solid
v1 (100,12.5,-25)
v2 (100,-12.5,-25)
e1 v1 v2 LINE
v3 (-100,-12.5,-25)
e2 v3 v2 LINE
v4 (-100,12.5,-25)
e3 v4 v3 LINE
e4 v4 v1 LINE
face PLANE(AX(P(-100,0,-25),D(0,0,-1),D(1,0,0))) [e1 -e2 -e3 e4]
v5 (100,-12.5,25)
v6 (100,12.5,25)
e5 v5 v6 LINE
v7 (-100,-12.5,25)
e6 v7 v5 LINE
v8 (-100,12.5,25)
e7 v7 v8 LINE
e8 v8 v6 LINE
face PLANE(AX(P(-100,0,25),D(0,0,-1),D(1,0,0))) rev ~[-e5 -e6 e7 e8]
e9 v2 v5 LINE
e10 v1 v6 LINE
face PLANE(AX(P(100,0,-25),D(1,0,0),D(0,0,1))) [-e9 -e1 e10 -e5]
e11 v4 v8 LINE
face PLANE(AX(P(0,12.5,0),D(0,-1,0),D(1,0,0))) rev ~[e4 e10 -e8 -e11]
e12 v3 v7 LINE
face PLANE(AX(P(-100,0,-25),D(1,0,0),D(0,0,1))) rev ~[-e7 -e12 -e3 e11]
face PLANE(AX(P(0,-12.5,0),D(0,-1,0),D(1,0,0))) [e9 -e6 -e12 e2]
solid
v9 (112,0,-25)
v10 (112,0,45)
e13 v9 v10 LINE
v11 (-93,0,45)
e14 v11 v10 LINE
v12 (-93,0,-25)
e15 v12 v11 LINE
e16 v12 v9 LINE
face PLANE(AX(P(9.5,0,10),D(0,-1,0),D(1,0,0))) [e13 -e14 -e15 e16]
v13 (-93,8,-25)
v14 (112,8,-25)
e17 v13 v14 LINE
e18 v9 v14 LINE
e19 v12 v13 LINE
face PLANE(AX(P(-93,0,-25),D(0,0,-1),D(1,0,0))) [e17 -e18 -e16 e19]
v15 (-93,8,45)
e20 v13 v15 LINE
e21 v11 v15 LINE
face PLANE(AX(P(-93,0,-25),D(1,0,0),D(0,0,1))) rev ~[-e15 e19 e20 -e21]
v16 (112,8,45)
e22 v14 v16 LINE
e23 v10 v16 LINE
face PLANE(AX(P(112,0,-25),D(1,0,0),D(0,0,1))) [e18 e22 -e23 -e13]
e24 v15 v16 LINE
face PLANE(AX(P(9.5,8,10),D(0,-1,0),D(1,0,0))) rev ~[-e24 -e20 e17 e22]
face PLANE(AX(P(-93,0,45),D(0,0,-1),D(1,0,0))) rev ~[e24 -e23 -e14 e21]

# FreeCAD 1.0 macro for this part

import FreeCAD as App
import Part
import Sketcher

V = App.Vector
Q = App.Units.Quantity


def add_polygon(sketch, points):
    """Adds a closed chain of lines whose ends are joined by coincident constraints."""
    first, n = sketch.GeometryCount, len(points)
    for a, b in zip(points, points[1:] + points[:1]):
        sketch.addGeometry(Part.LineSegment(App.Vector(*a, 0), App.Vector(*b, 0)), False)
    for i in range(n):
        sketch.addConstraint(Sketcher.Constraint("Coincident", first + i, 2, first + (i + 1) % n, 1))

doc = App.newDocument("Part")
params = doc.addObject("Spreadsheet::Sheet", "Params")
for row, (alias, value) in enumerate([
    ("sketch1_width", "200 mm"),
    ("sketch1_height", "50 mm"),
    ("pad1_length", "25 mm"),
    ("sketch2_width", "205 mm"),
    ("sketch2_height", "70 mm"),
    ("pad2_length", "8 mm"),
], start=1):
    params.set(f"A{row}", alias)
    params.set(f"B{row}", "=" + value)
    params.setAlias(f"B{row}", alias)

body = doc.addObject("PartDesign::Body", "Body")

sketch1 = body.newObject("Sketcher::SketchObject", "Sketch")
sketch1.AttachmentSupport = (doc.getObject("XZ_Plane"), [""])
sketch1.MapMode = "FlatFace"
add_polygon(sketch1, [(-100, 25), (-100, -25), (100, -25), (100, 25)])
sketch1.addConstraint([
    Sketcher.Constraint("Vertical", 0),
    Sketcher.Constraint("Horizontal", 1),
    Sketcher.Constraint("Vertical", 2),
    Sketcher.Constraint("Horizontal", 3),
    Sketcher.Constraint("Symmetric", 0, 2, 2, 2, -1, 1),
    Sketcher.Constraint("DistanceX", 1, 1, 1, 2, Q("200 mm")),
    Sketcher.Constraint("DistanceY", 0, 2, 0, 1, Q("50 mm")),
])
sketch1.setExpression("Constraints[9]", "Params.sketch1_width")
sketch1.setExpression("Constraints[10]", "Params.sketch1_height")
pad1 = body.newObject("PartDesign::Pad", "Pad")
pad1.Profile = sketch1
pad1.setExpression("Length", "Params.pad1_length")
pad1.Midplane = True
body2 = doc.addObject("PartDesign::Body", "Body001")

sketch2 = body2.newObject("Sketcher::SketchObject", "Sketch001")
sketch2.AttachmentSupport = (doc.getObject("XZ_Plane001"), [""])
sketch2.MapMode = "FlatFace"
add_polygon(sketch2, [(-93, 45), (-93, -25), (112, -25), (112, 45)])
sketch2.addConstraint([
    Sketcher.Constraint("Vertical", 0),
    Sketcher.Constraint("Horizontal", 1),
    Sketcher.Constraint("Vertical", 2),
    Sketcher.Constraint("Horizontal", 3),
    Sketcher.Constraint("DistanceX", 1, 1, 1, 2, Q("205 mm")),
    Sketcher.Constraint("DistanceY", 0, 2, 0, 1, Q("70 mm")),
    Sketcher.Constraint("DistanceX", 0, 2, -1, 1, Q("93 mm")),
    Sketcher.Constraint("DistanceY", 0, 2, -1, 1, Q("25 mm")),
])
sketch2.setExpression("Constraints[8]", "Params.sketch2_width")
sketch2.setExpression("Constraints[9]", "Params.sketch2_height")
pad2 = body2.newObject("PartDesign::Pad", "Pad001")
pad2.Profile = sketch2
pad2.setExpression("Length", "Params.pad2_length")
pad2.Reversed = True

doc.recompute()
